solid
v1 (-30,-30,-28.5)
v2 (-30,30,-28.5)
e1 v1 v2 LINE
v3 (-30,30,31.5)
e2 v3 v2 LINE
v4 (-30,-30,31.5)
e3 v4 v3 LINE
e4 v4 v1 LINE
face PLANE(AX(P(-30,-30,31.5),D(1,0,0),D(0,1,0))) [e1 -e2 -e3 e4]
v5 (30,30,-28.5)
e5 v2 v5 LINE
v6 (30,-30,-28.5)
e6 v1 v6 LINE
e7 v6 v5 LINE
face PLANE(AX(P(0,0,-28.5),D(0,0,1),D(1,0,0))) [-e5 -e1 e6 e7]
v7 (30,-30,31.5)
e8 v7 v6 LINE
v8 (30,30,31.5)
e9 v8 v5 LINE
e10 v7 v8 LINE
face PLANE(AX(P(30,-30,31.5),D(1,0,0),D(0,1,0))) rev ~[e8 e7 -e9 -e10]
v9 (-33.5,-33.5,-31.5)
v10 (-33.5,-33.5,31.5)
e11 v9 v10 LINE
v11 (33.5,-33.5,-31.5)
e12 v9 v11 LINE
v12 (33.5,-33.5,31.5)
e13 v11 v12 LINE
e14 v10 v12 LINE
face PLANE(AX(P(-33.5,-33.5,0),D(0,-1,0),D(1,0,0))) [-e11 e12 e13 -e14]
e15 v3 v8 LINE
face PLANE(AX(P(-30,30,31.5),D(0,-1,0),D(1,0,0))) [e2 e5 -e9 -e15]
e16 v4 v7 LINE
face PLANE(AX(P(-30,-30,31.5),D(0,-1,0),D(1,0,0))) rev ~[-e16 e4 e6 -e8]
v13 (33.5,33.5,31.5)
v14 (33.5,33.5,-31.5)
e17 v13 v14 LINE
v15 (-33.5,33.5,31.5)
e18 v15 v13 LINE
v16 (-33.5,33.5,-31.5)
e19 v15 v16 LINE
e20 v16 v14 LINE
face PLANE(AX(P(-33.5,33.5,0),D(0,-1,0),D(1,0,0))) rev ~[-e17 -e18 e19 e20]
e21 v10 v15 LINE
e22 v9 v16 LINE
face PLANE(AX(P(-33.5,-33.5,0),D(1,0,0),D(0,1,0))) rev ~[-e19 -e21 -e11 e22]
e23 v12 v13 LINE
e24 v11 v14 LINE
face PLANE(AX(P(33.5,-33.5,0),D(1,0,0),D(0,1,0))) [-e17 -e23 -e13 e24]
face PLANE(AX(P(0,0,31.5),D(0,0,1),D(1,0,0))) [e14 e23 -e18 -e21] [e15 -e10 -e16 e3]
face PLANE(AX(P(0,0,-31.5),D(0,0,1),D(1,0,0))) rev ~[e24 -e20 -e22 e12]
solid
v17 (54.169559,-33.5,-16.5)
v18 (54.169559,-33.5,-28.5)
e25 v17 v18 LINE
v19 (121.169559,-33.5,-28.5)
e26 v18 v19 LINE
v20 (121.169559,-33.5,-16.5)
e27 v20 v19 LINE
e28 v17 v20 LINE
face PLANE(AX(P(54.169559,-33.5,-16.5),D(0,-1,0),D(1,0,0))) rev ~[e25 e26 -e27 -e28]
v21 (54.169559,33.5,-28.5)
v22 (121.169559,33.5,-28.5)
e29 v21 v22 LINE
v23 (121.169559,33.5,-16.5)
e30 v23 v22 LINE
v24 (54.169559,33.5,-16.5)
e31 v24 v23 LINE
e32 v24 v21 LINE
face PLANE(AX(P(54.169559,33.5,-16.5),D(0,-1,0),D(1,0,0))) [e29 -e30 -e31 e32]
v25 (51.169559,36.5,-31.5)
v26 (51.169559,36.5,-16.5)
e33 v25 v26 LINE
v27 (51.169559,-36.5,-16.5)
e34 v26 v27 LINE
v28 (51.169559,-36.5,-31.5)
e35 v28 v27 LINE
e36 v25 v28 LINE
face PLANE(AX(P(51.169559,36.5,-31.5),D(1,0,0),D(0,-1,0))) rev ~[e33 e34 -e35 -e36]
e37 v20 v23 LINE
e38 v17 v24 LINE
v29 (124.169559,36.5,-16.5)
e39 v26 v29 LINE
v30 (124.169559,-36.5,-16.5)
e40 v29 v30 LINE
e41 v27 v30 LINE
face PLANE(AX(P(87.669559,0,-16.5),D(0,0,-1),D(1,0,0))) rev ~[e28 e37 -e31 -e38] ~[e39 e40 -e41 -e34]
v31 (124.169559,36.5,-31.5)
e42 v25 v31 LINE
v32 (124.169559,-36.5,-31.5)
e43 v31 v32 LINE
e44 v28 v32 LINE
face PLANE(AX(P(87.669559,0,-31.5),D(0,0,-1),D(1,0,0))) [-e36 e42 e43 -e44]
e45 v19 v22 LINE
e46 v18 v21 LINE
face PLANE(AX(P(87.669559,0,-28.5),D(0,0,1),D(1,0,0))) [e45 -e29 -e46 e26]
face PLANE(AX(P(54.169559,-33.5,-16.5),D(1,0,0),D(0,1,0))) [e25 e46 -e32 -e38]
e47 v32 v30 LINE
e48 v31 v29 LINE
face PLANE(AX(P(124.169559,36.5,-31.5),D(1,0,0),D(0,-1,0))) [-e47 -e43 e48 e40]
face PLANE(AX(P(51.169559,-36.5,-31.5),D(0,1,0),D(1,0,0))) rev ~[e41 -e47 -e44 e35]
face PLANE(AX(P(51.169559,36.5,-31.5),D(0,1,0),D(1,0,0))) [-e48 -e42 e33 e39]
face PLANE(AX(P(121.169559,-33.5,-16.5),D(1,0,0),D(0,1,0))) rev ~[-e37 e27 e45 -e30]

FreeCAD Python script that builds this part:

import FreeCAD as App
import Part
import Sketcher
from FreeCAD import Vector
Q = App.Units.Quantity


def add_polygon(sketch, points):
    """Adds a closed chain of lines whose ends are joined by coincident constraints."""
    first, n = sketch.GeometryCount, len(points)
    for a, b in zip(points, points[1:] + points[:1]):
        sketch.addGeometry(Part.LineSegment(App.Vector(*a, 0), App.Vector(*b, 0)), False)
    for i in range(n):
        sketch.addConstraint(Sketcher.Constraint("Coincident", first + i, 2, first + (i + 1) % n, 1))

doc = App.newDocument("Part")
body = doc.addObject("PartDesign::Body", "Body")

# Sketch on XY plane
sketch1 = body.newObject("Sketcher::SketchObject", "Sketch")
sketch1.AttachmentSupport = (doc.getObject("XY_Plane"), [""])
sketch1.MapMode = "FlatFace"
add_polygon(sketch1, [(-34, 34), (-34, -34), (34, -34), (34, 34)])  # lines 0-3
sketch1.addConstraint([
    Sketcher.Constraint("Vertical", 0),
    Sketcher.Constraint("Horizontal", 1),
    Sketcher.Constraint("Vertical", 2),
    Sketcher.Constraint("Horizontal", 3),
    Sketcher.Constraint("Symmetric", 0, 2, 2, 2, -1, 1),
    Sketcher.Constraint("Equal", 3, 0),
    Sketcher.Constraint("DistanceX", 1, 1, 1, 2, Q("67 mm")),
])
pad1 = body.newObject("PartDesign::Pad", "Pad")
pad1.Profile = sketch1
pad1.Length = 63
pad1.Midplane = True

# Sketch on XY plane
sketch2 = body.newObject("Sketcher::SketchObject", "Sketch001")
sketch2.AttachmentSupport = (doc.getObject("XY_Plane"), [""])
sketch2.MapMode = "FlatFace"
sketch2.AttachmentOffset = App.Placement(Vector(0, 0, 31.5), App.Rotation())
add_polygon(sketch2, [(-30, 30), (-30, -30), (30, -30), (30, 30)])  # lines 0-3
sketch2.addConstraint([
    Sketcher.Constraint("Vertical", 0),
    Sketcher.Constraint("Horizontal", 1),
    Sketcher.Constraint("Vertical", 2),
    Sketcher.Constraint("Horizontal", 3),
    Sketcher.Constraint("Symmetric", 0, 2, 2, 2, -1, 1),
    Sketcher.Constraint("Equal", 3, 0),
    Sketcher.Constraint("DistanceX", 1, 1, 1, 2, Q("60 mm")),
])
pocket1 = body.newObject("PartDesign::Pocket", "Pocket")
pocket1.Profile = sketch2
pocket1.Length = 60
body2 = doc.addObject("PartDesign::Body", "Body001")

# Sketch on XY plane
sketch3 = body2.newObject("Sketcher::SketchObject", "Sketch002")
sketch3.AttachmentSupport = (doc.getObject("XY_Plane001"), [""])
sketch3.MapMode = "FlatFace"
sketch3.AttachmentOffset = App.Placement(Vector(0, 0, -31.5), App.Rotation())
add_polygon(sketch3, [(51, -36), (51, 36), (124, 36), (124, -36)])  # lines 0-3
sketch3.addConstraint([
    Sketcher.Constraint("Vertical", 0),
    Sketcher.Constraint("Horizontal", 1),
    Sketcher.Constraint("Vertical", 2),
    Sketcher.Constraint("Horizontal", 3),
    Sketcher.Constraint("Equal", 3, 0),
    Sketcher.Constraint("DistanceX", 1, 1, 1, 2, Q("73 mm")),
    Sketcher.Constraint("DistanceY", -1, 1, 0, 2, Q("36.5 mm")),
    Sketcher.Constraint("DistanceX", -1, 1, 0, 2, Q("51.169559 mm")),
])
pad2 = body2.newObject("PartDesign::Pad", "Pad001")
pad2.Profile = sketch3
pad2.Length = 15

# Sketch on XY plane
sketch4 = body2.newObject("Sketcher::SketchObject", "Sketch003")
sketch4.AttachmentSupport = (doc.getObject("XY_Plane001"), [""])
sketch4.MapMode = "FlatFace"
sketch4.AttachmentOffset = App.Placement(Vector(0, 0, -16.5), App.Rotation())
add_polygon(sketch4, [(54, 34), (54, -34), (121, -34), (121, 34)])  # lines 0-3
sketch4.addConstraint([
    Sketcher.Constraint("Vertical", 0),
    Sketcher.Constraint("Horizontal", 1),
    Sketcher.Constraint("Vertical", 2),
    Sketcher.Constraint("Horizontal", 3),
    Sketcher.Constraint("Equal", 3, 0),
    Sketcher.Constraint("DistanceX", 1, 1, 1, 2, Q("67 mm")),
    Sketcher.Constraint("DistanceY", 0, 2, -1, 1, Q("33.5 mm")),
    Sketcher.Constraint("DistanceX", -1, 1, 0, 2, Q("54.169559 mm")),
])
pocket2 = body2.newObject("PartDesign::Pocket", "Pocket001")
pocket2.Profile = sketch4
pocket2.Length = 12

doc.recompute()
